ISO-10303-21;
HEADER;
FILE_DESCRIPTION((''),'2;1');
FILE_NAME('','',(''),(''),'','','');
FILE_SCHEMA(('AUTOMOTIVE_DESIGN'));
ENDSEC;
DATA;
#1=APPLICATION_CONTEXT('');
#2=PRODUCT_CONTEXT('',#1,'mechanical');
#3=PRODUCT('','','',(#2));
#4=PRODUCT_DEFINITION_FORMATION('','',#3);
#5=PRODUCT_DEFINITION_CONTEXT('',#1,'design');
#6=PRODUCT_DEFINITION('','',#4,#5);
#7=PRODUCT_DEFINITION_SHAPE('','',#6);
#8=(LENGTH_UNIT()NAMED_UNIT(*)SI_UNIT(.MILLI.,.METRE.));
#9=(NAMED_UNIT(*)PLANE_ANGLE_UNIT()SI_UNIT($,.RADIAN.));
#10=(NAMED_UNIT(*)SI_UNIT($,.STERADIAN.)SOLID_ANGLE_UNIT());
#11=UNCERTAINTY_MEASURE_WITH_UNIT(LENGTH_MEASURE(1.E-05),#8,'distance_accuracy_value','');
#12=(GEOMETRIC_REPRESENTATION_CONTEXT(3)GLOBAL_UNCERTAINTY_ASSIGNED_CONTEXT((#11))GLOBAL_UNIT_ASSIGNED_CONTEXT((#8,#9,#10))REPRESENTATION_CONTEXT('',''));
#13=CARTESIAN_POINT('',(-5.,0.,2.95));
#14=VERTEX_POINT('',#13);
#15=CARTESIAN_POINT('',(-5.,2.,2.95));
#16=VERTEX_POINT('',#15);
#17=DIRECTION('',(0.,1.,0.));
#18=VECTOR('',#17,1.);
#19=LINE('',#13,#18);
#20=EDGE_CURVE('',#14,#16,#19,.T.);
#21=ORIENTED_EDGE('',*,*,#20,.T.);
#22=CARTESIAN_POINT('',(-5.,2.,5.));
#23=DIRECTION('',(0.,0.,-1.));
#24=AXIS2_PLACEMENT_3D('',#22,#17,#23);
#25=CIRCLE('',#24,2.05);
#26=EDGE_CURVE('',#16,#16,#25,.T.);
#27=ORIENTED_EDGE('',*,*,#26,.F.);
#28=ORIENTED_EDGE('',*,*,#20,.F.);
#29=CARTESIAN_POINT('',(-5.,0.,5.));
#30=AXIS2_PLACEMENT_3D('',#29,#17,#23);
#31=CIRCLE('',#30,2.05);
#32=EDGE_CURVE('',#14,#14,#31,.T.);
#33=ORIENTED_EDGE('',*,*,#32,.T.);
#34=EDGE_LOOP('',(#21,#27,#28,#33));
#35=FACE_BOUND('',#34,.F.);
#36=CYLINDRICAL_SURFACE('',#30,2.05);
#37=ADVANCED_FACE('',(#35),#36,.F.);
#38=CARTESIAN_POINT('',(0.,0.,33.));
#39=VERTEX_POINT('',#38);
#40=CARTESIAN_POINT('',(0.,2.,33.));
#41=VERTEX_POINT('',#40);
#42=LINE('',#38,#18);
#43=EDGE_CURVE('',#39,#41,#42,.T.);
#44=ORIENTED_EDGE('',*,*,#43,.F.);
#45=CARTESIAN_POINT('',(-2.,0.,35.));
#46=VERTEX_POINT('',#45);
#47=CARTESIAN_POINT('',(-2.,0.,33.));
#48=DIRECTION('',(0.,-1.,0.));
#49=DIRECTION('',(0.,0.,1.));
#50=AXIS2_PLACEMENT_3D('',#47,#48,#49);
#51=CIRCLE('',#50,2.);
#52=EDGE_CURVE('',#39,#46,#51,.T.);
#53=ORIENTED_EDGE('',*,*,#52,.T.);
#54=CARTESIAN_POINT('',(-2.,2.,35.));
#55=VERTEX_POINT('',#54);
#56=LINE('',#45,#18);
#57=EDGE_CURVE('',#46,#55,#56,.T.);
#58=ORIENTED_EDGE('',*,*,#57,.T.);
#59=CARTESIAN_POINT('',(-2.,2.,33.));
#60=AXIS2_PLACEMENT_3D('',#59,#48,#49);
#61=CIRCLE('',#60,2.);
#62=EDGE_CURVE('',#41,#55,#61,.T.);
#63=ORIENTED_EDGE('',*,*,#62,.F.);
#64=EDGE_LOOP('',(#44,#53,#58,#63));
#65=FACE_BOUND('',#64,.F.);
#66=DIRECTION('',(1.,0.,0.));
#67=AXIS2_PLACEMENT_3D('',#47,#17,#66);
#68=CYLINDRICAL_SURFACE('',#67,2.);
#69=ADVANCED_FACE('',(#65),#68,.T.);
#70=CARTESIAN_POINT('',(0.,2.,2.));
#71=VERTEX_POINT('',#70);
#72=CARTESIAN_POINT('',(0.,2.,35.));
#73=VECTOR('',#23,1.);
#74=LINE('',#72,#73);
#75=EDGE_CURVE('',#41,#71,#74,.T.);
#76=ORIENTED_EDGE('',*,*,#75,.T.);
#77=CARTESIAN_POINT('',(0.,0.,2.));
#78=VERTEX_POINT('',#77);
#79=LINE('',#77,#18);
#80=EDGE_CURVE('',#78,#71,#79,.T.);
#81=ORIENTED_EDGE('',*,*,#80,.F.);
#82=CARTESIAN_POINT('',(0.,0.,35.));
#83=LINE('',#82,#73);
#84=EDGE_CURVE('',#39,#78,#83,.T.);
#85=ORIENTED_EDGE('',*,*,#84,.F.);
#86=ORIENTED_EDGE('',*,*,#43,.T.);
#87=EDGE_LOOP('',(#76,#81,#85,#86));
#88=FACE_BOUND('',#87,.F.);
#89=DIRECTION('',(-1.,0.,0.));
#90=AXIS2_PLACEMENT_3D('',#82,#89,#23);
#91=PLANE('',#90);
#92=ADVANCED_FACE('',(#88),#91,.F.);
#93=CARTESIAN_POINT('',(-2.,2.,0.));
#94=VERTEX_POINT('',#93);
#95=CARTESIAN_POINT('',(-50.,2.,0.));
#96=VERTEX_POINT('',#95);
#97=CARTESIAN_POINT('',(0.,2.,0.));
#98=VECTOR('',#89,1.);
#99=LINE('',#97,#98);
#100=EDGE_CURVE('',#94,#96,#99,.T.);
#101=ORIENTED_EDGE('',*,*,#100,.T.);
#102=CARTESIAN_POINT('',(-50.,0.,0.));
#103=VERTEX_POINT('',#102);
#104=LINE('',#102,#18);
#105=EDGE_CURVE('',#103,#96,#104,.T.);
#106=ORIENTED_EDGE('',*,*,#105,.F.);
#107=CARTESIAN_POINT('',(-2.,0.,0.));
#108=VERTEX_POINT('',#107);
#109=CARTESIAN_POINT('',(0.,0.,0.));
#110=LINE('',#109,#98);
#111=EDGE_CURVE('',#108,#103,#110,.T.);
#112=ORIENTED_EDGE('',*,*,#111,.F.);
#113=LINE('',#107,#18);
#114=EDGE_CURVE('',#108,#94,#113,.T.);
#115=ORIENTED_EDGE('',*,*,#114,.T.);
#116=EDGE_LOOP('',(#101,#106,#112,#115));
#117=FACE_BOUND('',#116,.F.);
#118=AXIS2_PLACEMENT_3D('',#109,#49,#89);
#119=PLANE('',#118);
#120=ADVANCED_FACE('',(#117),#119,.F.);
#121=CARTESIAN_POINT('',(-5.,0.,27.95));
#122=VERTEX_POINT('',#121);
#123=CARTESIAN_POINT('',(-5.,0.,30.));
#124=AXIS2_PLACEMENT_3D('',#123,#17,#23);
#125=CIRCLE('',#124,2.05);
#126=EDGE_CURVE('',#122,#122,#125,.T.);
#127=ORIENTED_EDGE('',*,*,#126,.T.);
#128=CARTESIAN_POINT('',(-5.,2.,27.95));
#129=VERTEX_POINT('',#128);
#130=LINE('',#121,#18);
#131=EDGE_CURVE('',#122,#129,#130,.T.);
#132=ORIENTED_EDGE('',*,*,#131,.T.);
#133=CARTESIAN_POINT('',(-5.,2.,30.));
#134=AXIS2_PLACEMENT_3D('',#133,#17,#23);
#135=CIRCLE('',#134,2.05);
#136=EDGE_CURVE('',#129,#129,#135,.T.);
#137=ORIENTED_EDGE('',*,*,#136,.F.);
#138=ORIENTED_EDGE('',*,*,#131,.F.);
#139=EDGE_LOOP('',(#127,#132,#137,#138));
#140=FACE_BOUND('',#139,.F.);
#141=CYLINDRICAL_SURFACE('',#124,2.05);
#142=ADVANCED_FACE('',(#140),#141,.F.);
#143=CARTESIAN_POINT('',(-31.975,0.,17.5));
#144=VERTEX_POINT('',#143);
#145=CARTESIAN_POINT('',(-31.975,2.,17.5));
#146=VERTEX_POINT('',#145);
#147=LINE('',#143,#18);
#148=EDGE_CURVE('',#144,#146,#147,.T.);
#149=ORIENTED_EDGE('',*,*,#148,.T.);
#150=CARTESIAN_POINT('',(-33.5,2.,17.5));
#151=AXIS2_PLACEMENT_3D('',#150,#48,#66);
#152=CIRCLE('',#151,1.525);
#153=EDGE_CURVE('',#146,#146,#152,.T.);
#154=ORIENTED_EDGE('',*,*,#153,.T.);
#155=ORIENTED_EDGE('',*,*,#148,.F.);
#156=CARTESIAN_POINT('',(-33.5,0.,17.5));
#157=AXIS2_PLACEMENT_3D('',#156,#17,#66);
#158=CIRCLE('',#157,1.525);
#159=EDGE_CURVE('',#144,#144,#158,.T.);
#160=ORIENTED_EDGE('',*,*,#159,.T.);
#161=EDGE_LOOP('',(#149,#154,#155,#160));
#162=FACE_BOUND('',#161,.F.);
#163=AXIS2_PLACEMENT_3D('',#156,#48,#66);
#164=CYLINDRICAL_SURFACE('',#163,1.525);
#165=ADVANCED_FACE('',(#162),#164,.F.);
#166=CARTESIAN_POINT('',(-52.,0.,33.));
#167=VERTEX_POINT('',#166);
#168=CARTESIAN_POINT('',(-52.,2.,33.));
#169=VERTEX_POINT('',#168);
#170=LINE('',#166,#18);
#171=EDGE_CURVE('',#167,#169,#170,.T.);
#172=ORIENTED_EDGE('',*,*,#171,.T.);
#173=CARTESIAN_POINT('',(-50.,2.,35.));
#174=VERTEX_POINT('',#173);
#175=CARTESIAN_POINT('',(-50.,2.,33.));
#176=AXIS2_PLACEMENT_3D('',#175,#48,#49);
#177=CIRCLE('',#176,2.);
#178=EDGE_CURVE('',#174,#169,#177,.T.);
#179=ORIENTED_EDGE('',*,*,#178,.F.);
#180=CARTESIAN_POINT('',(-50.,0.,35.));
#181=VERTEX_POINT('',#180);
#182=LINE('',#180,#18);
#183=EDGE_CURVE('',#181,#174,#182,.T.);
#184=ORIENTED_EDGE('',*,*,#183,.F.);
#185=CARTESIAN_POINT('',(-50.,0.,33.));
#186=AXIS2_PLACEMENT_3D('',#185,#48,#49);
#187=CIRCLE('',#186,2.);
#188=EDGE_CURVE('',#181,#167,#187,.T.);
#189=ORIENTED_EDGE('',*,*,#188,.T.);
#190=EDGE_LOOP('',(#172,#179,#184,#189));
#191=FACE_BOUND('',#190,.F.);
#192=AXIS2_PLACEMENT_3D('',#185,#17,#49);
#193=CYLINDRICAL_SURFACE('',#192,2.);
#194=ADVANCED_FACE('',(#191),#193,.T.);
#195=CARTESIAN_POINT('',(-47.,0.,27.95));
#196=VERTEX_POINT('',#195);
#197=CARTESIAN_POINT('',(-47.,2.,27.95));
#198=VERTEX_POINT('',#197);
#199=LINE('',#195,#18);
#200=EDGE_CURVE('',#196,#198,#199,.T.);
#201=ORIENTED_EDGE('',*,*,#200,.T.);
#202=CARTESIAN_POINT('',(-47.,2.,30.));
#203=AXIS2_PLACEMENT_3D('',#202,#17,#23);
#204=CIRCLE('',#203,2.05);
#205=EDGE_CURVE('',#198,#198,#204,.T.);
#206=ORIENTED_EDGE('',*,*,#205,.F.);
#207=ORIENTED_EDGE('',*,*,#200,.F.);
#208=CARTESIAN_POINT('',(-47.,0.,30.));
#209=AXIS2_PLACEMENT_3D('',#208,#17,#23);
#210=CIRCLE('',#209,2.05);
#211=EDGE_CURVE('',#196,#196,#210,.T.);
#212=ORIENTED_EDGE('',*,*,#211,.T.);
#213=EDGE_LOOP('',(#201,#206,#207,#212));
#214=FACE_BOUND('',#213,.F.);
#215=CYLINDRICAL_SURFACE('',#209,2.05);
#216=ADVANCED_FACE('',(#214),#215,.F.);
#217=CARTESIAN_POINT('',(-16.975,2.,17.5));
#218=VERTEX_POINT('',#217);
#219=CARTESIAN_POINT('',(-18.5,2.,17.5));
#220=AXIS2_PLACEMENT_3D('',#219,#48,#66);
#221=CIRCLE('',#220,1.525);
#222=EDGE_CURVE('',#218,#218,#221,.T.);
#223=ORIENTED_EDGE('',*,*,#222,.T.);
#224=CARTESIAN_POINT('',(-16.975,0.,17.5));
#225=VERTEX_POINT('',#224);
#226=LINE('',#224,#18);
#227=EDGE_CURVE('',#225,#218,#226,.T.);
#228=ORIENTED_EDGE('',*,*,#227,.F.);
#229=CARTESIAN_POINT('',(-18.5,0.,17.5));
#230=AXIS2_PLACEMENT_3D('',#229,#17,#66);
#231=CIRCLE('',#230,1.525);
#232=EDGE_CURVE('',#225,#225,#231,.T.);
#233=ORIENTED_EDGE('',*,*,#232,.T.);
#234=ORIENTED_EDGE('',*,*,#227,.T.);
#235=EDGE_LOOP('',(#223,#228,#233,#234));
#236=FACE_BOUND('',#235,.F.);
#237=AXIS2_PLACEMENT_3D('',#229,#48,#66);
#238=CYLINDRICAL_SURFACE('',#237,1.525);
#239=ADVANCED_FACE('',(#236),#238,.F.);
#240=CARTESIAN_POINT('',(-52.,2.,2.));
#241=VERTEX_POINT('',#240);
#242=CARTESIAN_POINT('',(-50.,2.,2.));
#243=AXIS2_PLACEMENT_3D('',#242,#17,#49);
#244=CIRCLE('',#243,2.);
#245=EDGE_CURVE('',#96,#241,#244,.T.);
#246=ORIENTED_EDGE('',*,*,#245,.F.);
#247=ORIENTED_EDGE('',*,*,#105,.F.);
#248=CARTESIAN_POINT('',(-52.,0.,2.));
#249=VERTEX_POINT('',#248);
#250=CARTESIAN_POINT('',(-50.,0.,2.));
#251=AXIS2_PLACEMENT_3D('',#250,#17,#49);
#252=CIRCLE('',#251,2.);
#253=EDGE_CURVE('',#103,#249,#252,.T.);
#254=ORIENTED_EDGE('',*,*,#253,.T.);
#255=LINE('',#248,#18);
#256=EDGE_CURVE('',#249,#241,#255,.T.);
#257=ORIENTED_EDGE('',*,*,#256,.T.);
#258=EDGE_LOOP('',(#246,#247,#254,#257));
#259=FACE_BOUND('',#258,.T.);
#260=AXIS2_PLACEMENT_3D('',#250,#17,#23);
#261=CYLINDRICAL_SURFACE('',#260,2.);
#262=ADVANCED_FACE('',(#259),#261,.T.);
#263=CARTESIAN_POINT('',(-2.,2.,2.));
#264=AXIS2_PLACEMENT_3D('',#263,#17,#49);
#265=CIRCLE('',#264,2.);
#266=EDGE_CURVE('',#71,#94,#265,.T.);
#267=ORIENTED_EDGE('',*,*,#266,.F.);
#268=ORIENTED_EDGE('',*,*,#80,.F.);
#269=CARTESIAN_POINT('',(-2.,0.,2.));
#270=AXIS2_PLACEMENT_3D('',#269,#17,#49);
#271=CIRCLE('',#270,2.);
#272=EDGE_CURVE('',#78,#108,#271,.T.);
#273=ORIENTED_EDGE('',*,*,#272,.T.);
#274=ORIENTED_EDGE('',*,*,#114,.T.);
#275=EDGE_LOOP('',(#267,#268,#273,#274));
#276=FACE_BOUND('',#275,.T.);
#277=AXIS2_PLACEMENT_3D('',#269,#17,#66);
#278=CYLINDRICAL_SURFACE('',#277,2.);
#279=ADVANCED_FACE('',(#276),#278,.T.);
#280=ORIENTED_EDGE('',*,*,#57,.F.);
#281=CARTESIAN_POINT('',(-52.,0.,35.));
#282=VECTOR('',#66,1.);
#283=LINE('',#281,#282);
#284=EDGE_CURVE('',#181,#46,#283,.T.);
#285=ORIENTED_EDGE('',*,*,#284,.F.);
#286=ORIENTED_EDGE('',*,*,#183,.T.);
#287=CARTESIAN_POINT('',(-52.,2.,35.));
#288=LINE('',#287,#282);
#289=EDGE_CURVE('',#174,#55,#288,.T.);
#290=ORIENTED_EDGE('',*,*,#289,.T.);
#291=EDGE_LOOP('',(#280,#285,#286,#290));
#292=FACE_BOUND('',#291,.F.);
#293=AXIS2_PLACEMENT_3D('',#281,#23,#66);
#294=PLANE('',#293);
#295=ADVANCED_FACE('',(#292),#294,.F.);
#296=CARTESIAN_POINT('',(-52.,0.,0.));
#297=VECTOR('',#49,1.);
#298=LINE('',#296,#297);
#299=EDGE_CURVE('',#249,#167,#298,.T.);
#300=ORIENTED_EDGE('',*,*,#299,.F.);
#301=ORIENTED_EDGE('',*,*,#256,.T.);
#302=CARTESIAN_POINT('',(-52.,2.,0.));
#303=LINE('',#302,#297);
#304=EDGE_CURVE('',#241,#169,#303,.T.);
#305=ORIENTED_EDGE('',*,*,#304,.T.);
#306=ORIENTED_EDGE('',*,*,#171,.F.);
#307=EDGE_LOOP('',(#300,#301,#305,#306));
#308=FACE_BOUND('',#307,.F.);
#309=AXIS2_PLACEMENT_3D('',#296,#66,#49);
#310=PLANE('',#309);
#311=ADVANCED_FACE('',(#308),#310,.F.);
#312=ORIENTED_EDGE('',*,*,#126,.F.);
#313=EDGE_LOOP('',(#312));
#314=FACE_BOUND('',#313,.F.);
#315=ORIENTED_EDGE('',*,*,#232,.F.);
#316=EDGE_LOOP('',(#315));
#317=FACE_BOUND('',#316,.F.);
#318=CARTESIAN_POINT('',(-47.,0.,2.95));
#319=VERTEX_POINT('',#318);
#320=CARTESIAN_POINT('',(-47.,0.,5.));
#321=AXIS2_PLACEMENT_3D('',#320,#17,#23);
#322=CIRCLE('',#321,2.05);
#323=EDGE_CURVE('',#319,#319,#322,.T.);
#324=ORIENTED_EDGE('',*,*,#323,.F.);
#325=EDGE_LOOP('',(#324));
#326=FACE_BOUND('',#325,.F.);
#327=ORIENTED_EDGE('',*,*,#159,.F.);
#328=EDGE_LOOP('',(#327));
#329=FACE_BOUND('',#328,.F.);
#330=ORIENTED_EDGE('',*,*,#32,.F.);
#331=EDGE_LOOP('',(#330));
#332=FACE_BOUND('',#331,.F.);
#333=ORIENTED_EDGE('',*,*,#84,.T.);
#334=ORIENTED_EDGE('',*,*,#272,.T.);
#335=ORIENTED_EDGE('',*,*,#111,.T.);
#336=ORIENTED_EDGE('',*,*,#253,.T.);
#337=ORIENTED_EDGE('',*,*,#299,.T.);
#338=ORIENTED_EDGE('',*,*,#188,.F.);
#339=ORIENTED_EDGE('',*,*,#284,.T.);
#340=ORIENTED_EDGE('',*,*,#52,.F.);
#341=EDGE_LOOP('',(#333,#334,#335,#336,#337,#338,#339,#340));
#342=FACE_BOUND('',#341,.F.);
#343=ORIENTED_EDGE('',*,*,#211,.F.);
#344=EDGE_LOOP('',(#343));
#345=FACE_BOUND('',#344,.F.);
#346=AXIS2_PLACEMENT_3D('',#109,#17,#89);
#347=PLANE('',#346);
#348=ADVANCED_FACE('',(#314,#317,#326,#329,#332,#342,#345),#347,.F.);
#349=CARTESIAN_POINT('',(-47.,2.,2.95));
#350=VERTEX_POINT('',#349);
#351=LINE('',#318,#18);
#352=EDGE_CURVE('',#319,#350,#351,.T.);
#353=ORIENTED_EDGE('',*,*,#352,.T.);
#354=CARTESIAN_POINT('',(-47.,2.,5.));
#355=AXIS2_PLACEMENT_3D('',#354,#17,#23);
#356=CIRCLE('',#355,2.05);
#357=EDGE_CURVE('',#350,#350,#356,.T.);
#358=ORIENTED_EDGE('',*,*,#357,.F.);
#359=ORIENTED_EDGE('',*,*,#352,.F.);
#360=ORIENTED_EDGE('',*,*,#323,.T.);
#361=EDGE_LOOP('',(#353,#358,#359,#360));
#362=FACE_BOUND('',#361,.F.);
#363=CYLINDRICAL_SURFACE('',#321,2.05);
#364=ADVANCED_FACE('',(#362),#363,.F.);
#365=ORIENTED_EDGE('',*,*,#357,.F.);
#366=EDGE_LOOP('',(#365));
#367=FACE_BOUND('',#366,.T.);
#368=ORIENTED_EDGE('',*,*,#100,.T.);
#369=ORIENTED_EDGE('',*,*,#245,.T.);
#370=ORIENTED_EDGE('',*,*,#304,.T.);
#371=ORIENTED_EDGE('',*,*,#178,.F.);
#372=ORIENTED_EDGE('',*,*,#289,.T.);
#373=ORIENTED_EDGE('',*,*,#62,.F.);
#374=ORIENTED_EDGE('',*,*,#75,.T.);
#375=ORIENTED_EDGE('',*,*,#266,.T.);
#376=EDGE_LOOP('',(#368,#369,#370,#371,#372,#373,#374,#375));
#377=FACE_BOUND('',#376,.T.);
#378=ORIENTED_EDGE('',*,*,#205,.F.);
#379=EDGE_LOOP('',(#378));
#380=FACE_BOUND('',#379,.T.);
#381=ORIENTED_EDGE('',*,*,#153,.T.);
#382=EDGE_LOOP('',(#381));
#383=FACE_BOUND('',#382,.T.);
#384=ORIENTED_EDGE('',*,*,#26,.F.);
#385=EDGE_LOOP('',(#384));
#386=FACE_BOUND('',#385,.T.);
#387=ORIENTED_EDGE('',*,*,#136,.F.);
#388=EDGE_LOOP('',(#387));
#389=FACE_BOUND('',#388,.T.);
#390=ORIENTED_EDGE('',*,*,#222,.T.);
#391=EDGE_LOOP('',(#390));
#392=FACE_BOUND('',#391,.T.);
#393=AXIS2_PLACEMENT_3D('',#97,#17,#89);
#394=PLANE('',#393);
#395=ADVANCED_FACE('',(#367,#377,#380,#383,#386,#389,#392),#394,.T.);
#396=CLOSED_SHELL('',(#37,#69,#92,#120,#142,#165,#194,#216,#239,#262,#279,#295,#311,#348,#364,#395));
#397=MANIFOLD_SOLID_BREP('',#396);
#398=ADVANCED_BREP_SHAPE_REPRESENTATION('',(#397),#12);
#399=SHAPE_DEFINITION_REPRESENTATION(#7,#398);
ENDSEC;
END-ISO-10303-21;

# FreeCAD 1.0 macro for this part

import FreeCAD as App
import Part
import Sketcher


def edges_at(feature, points):
    """Names of the edges that pass closest to the given points."""
    edges = feature.Shape.Edges
    near = lambda p: min(range(len(edges)), key=lambda i: edges[i].distToShape(Part.Vertex(*p))[0])
    return sorted({f"Edge{near(p) + 1}" for p in points})

doc = App.newDocument("Part")
body = doc.addObject("PartDesign::Body", "Body")

sketch1 = body.newObject("Sketcher::SketchObject", "Sketch")
sketch1.AttachmentSupport = (doc.getObject("XZ_Plane"), [""])
sketch1.MapMode = "FlatFace"
sketch1.addGeometry(Part.LineSegment(App.Vector(0, 35, 0), App.Vector(0, 0, 0)), False)
sketch1.addGeometry(Part.LineSegment(App.Vector(0, 0, 0), App.Vector(-52, 0, 0)), False)
sketch1.addGeometry(Part.LineSegment(App.Vector(-52, 0, 0), App.Vector(-52, 35, 0)), False)
sketch1.addGeometry(Part.LineSegment(App.Vector(-52, 35, 0), App.Vector(0, 35, 0)), False)
sketch1.addConstraint(Sketcher.Constraint("Coincident", 0, 2, 1, 1))
sketch1.addConstraint(Sketcher.Constraint("Coincident", 1, 2, 2, 1))
sketch1.addConstraint(Sketcher.Constraint("Coincident", 2, 2, 3, 1))
sketch1.addConstraint(Sketcher.Constraint("Coincident", 3, 2, 0, 1))
sketch1.addConstraint(Sketcher.Constraint("Vertical", 0))
sketch1.addConstraint(Sketcher.Constraint("Horizontal", 1))
sketch1.addConstraint(Sketcher.Constraint("Vertical", 2))
sketch1.addConstraint(Sketcher.Constraint("Horizontal", 3))
sketch1.addConstraint(Sketcher.Constraint("Coincident", 0, 2, -1, 1))
sketch1.addConstraint(Sketcher.Constraint("DistanceX", 1, 2, 1, 1, 52.0))
sketch1.addConstraint(Sketcher.Constraint("DistanceY", 0, 2, 0, 1, 35.0))
pad1 = body.newObject("PartDesign::Pad", "Pad")
pad1.Profile = sketch1
pad1.Length = 2
pad1.Reversed = True

sketch2 = body.newObject("Sketcher::SketchObject", "Sketch001")
sketch2.AttachmentSupport = (doc.getObject("XZ_Plane"), [""])
sketch2.MapMode = "FlatFace"
sketch2.addGeometry(Part.Circle(App.Vector(-33.5, 17.5, 0), App.Vector(0, 0, 1), 1.5), False)
sketch2.addGeometry(Part.Circle(App.Vector(-18.5, 17.5, 0), App.Vector(0, 0, 1), 1.5), False)
sketch2.addConstraint(Sketcher.Constraint("Equal", 0, 1))
sketch2.addConstraint(Sketcher.Constraint("Horizontal", 0, 3, 1, 3))
sketch2.addConstraint(Sketcher.Constraint("Diameter", 0, 3.05))
sketch2.addConstraint(Sketcher.Constraint("DistanceX", 0, 3, 1, 3, 15.0))
sketch2.addConstraint(Sketcher.Constraint("DistanceX", 0, 3, -1, 1, 33.5))
sketch2.addConstraint(Sketcher.Constraint("DistanceY", -1, 1, 0, 3, 17.5))
pocket1 = body.newObject("PartDesign::Pocket", "Pocket")
pocket1.Profile = sketch2
pocket1.Type = "ThroughAll"

sketch3 = body.newObject("Sketcher::SketchObject", "Sketch002")
sketch3.AttachmentSupport = (doc.getObject("XZ_Plane"), [""])
sketch3.MapMode = "FlatFace"
sketch3.addGeometry(Part.Circle(App.Vector(-5, 5, 0), App.Vector(0, 0, 1), 2), False)
sketch3.addGeometry(Part.Circle(App.Vector(-5, 30, 0), App.Vector(0, 0, 1), 2), False)
sketch3.addGeometry(Part.Circle(App.Vector(-47, 30, 0), App.Vector(0, 0, 1), 2), False)
sketch3.addGeometry(Part.Circle(App.Vector(-47, 5, 0), App.Vector(0, 0, 1), 2), False)
sketch3.addConstraint(Sketcher.Constraint("Equal", 0, 1))
sketch3.addConstraint(Sketcher.Constraint("Equal", 1, 2))
sketch3.addConstraint(Sketcher.Constraint("Equal", 2, 3))
sketch3.addConstraint(Sketcher.Constraint("Horizontal", 1, 3, 2, 3))
sketch3.addConstraint(Sketcher.Constraint("Horizontal", 0, 3, 3, 3))
sketch3.addConstraint(Sketcher.Constraint("Vertical", 0, 3, 1, 3))
sketch3.addConstraint(Sketcher.Constraint("Vertical", 2, 3, 3, 3))
sketch3.addConstraint(Sketcher.Constraint("Diameter", 0, 4.1))
sketch3.addConstraint(Sketcher.Constraint("DistanceX", 0, 3, -1, 1, 5.0))
sketch3.addConstraint(Sketcher.Constraint("DistanceY", -1, 1, 0, 3, 5.0))
sketch3.addConstraint(Sketcher.Constraint("DistanceY", -1, 1, 1, 3, 30.0))
sketch3.addConstraint(Sketcher.Constraint("DistanceX", 2, 3, -1, 1, 47.0))
doc.recompute()
hole = body.newObject("PartDesign::Hole", "Hole")
hole.Profile = sketch3
hole.ThreadType = "None"
hole.Diameter = 4.1
hole.DepthType = "ThroughAll"
doc.recompute()

fillet = body.newObject("PartDesign::Fillet", "Fillet")
fillet.Base = (hole, edges_at(hole, [
    (-52, 1, 35),
    (-52, 1, 0),
    (0, 1, 0),
    (0, 1, 35),
]))
fillet.Radius = 2

doc.recompute()
